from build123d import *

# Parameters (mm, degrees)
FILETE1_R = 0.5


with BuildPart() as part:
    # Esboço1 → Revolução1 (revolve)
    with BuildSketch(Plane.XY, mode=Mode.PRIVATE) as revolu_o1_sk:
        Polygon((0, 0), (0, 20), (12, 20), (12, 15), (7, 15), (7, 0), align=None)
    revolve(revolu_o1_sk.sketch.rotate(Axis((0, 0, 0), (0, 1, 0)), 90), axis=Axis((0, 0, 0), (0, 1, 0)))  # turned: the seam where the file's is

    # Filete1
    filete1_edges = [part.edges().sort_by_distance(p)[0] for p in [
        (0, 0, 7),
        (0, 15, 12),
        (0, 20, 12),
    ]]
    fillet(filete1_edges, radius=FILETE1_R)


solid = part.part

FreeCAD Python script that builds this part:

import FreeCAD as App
import Part
import Sketcher


def edges_at(feature, points):
    """Names of the edges that pass closest to the given points."""
    edges = feature.Shape.Edges
    near = lambda p: min(range(len(edges)), key=lambda i: edges[i].distToShape(Part.Vertex(*p))[0])
    return sorted({f"Edge{near(p) + 1}" for p in points})


def add_polygon(sketch, points):
    """Adds a closed chain of lines whose ends are joined by coincident constraints."""
    first, n = sketch.GeometryCount, len(points)
    for a, b in zip(points, points[1:] + points[:1]):
        sketch.addGeometry(Part.LineSegment(App.Vector(*a, 0), App.Vector(*b, 0)), False)
    for i in range(n):
        sketch.addConstraint(Sketcher.Constraint("Coincident", first + i, 2, first + (i + 1) % n, 1))

doc = App.newDocument("Part")
body = doc.addObject("PartDesign::Body", "Body")

sketch1 = doc.addObject("Sketcher::SketchObject", "Sketch")
body.addObject(sketch1)
sketch1.AttachmentSupport = (doc.XY_Plane, [""])
sketch1.MapMode = "FlatFace"
add_polygon(sketch1, [(0, 20), (0, 0), (7, 0), (7, 15), (12, 15), (12, 20)])
sketch1.addConstraint([
    Sketcher.Constraint("Vertical", 0),
    Sketcher.Constraint("Horizontal", 1),
    Sketcher.Constraint("Vertical", 2),
    Sketcher.Constraint("Horizontal", 3),
    Sketcher.Constraint("Vertical", 4),
    Sketcher.Constraint("Horizontal", 5),
    Sketcher.Constraint("Coincident", 0, 2, -1, 1),
    Sketcher.Constraint("Equal", 3, 4),
    Sketcher.Constraint("DistanceX", 1, 1, 1, 2, 7.0),
    Sketcher.Constraint("DistanceX", 3, 1, 3, 2, 5.0),
    Sketcher.Constraint("DistanceY", 0, 2, 0, 1, 20.0),
])
revolution = doc.addObject("PartDesign::Revolution", "Revolution")
body.addObject(revolution)
revolution.Profile = sketch1
revolution.ReferenceAxis = (sketch1, ["V_Axis"])
revolution.Angle = 360
doc.recompute()

fillet = doc.addObject("PartDesign::Fillet", "Fillet")
body.addObject(fillet)
fillet.Base = (revolution, edges_at(revolution, [(0, 0, 7), (0, 15, 12), (0, 20, 12)]))
fillet.Radius = 0.5

doc.recompute()
